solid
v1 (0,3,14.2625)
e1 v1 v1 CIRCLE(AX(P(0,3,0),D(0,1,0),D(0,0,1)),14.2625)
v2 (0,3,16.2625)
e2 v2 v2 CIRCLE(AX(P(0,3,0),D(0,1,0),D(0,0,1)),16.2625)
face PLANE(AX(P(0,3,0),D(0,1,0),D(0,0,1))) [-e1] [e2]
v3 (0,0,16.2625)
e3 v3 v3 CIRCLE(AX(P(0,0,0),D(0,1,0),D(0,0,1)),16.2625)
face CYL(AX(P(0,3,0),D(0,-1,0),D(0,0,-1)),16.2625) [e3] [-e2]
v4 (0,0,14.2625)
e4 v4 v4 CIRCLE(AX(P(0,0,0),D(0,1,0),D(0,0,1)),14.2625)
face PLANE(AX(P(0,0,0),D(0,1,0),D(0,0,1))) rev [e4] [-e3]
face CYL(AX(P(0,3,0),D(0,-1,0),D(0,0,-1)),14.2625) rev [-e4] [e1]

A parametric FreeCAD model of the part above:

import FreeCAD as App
import Part
import Sketcher

V = App.Vector

doc = App.newDocument("Part")
body = doc.addObject("PartDesign::Body", "Body")

# Sketch on XZ plane
sketch1 = doc.addObject("Sketcher::SketchObject", "Sketch")
body.addObject(sketch1)
sketch1.AttachmentSupport = (doc.XZ_Plane, [""])
sketch1.MapMode = "FlatFace"
sketch1.addGeometry(Part.Circle(V(0, 0, 0), V(0, 0, 1), 16), False)
sketch1.addGeometry(Part.Circle(V(0, 0, 0), V(0, 0, 1), 14), False)
sketch1.addConstraint(Sketcher.Constraint("Coincident", 0, 3, -1, 1))
sketch1.addConstraint(Sketcher.Constraint("Coincident", 1, 3, -1, 1))
sketch1.addConstraint(Sketcher.Constraint("Diameter", 0, 32.525))
sketch1.addConstraint(Sketcher.Constraint("Diameter", 1, 28.525))
pad1 = doc.addObject("PartDesign::Pad", "Pad")
body.addObject(pad1)
pad1.Profile = sketch1
pad1.Length = 3
pad1.Reversed = True

doc.recompute()
